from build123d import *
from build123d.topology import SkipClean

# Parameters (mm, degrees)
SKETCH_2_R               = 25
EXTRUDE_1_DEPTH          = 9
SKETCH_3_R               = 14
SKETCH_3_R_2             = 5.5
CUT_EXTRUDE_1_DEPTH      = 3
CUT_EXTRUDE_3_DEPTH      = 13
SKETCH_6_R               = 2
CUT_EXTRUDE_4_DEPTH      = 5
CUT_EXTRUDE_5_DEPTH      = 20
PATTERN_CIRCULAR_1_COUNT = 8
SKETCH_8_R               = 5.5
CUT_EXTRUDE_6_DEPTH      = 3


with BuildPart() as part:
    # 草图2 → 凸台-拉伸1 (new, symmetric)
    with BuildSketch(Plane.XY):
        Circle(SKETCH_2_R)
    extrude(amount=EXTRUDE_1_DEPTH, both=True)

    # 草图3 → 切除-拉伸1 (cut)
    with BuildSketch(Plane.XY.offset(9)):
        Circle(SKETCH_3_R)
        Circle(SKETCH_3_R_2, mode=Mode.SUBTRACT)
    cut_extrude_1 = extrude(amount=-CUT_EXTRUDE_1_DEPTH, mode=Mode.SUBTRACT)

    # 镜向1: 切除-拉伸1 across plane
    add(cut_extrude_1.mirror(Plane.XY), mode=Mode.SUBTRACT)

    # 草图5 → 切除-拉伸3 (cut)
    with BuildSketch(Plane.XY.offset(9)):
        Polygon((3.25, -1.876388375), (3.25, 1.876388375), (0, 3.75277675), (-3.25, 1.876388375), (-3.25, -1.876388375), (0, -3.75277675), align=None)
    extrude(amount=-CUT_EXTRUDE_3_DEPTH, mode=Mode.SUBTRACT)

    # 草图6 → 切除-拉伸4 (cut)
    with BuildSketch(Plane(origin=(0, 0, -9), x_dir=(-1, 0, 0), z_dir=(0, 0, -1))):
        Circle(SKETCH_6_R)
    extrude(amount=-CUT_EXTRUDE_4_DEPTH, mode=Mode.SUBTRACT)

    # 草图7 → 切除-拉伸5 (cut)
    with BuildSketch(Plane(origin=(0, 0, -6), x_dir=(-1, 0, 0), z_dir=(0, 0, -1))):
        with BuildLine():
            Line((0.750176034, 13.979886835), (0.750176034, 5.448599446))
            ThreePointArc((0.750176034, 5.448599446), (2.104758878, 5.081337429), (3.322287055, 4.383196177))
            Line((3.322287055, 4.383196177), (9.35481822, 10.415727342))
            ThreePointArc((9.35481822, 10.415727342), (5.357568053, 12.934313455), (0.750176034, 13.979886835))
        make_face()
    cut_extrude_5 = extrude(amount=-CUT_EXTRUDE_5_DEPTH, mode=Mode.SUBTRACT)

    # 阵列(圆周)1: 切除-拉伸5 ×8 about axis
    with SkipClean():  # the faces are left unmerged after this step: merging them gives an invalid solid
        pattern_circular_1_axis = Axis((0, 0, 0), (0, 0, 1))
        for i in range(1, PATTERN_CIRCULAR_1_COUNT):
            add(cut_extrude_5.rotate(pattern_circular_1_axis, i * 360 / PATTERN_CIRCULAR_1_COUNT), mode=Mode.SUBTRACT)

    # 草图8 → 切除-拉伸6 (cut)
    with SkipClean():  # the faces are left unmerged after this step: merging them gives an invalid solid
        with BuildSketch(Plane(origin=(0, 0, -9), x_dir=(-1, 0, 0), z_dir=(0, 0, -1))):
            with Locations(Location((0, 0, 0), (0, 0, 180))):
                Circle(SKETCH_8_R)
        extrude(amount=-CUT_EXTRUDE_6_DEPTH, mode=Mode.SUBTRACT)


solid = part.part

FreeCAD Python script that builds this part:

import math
import FreeCAD as App
import Part
import Sketcher
Q = App.Units.Quantity

doc = App.newDocument("Part")
body = doc.addObject("PartDesign::Body", "Body")

# Sketch on XY plane
sketch1 = body.newObject("Sketcher::SketchObject", "Sketch")
sketch1.AttachmentSupport = (doc.getObject("XY_Plane"), [""])
sketch1.MapMode = "FlatFace"
sketch1.addGeometry(Part.Circle(App.Vector(0, 0, 0), App.Vector(0, 0, 1), 25), False)
sketch1.addConstraint([
    Sketcher.Constraint("Coincident", 0, 3, -1, 1),
    Sketcher.Constraint("Diameter", 0, Q("50 mm")),
])
pad1 = body.newObject("PartDesign::Pad", "Pad")
pad1.Profile = sketch1
pad1.Length = 18
pad1.Midplane = True

# Sketch on XY plane
sketch2 = body.newObject("Sketcher::SketchObject", "Sketch001")
sketch2.AttachmentSupport = (doc.getObject("XY_Plane"), [""])
sketch2.MapMode = "FlatFace"
sketch2.AttachmentOffset = App.Placement(App.Vector(0, 0, 9), App.Rotation())
sketch2.addGeometry([
    Part.Circle(App.Vector(0, 0, 0), App.Vector(0, 0, 1), 14),
    Part.Circle(App.Vector(0, 0, 0), App.Vector(0, 0, 1), 6),
], False)
sketch2.addConstraint([
    Sketcher.Constraint("Coincident", 0, 3, -1, 1),
    Sketcher.Constraint("Coincident", 1, 3, -1, 1),
    Sketcher.Constraint("Diameter", 0, Q("28 mm")),
    Sketcher.Constraint("Diameter", 1, Q("11 mm")),
])
pocket1 = body.newObject("PartDesign::Pocket", "Pocket")
pocket1.Profile = sketch2
pocket1.Length = 3
doc.recompute()

mirrored = body.newObject("PartDesign::Mirrored", "Mirrored")
mirrored.Originals = [pocket1]
mirrored.MirrorPlane = (doc.getObject("XY_Plane"), [""])
body.Tip = mirrored

# Sketch on XY plane
sketch3 = body.newObject("Sketcher::SketchObject", "Sketch002")
sketch3.AttachmentSupport = (doc.getObject("XY_Plane"), [""])
sketch3.MapMode = "FlatFace"
sketch3.AttachmentOffset = App.Placement(App.Vector(0, 0, 9), App.Rotation())
sketch3.addGeometry([
    Part.LineSegment(App.Vector(3.2, -1.9, 0), App.Vector(3.2, 1.9, 0)),  # 0
    Part.LineSegment(App.Vector(3.2, 1.9, 0), App.Vector(0, 3.8, 0)),  # 1
    Part.LineSegment(App.Vector(0, 3.8, 0), App.Vector(-3.2, 1.9, 0)),  # 2
    Part.LineSegment(App.Vector(-3.2, 1.9, 0), App.Vector(-3.2, -1.9, 0)),  # 3
    Part.LineSegment(App.Vector(-3.2, -1.9, 0), App.Vector(0, -3.8, 0)),  # 4
    Part.LineSegment(App.Vector(0, -3.8, 0), App.Vector(3.2, -1.9, 0)),  # 5
], False)
sketch3.addConstraint([
    Sketcher.Constraint("Coincident", 0, 2, 1, 1),
    Sketcher.Constraint("Coincident", 1, 2, 2, 1),
    Sketcher.Constraint("Coincident", 2, 2, 3, 1),
    Sketcher.Constraint("Coincident", 3, 2, 4, 1),
    Sketcher.Constraint("Coincident", 4, 2, 5, 1),
    Sketcher.Constraint("Coincident", 5, 2, 0, 1),
    Sketcher.Constraint("Vertical", 0),
    Sketcher.Constraint("Vertical", 3),
    Sketcher.Constraint("Symmetric", 0, 2, 3, 2, -1, 1),
    Sketcher.Constraint("Symmetric", 1, 2, 4, 2, -1, 1),
    Sketcher.Constraint("PointOnObject", 1, 2, -2),
    Sketcher.Constraint("Parallel", 2, 5),
    Sketcher.Constraint("Horizontal", 0, 2, 2, 2),
    Sketcher.Constraint("Angle", 1, Q("150 deg")),
    Sketcher.Constraint("DistanceX", 2, 2, 0, 2, Q("6.5 mm")),
    Sketcher.Constraint("DistanceY", 0, 1, 0, 2, Q("3.752777 mm")),
])
pocket2 = body.newObject("PartDesign::Pocket", "Pocket001")
pocket2.Profile = sketch3
pocket2.Length = 13

# Sketch on XY plane
sketch4 = body.newObject("Sketcher::SketchObject", "Sketch003")
sketch4.AttachmentSupport = (doc.getObject("XY_Plane"), [""])
sketch4.MapMode = "FlatFace"
sketch4.AttachmentOffset = App.Placement(App.Vector(0, 0, -9), App.Rotation())
sketch4.addGeometry(Part.Circle(App.Vector(0, 0, 0), App.Vector(0, 0, 1), 2), False)
sketch4.addConstraint([
    Sketcher.Constraint("Coincident", 0, 3, -1, 1),
    Sketcher.Constraint("Diameter", 0, Q("4 mm")),
])
pocket3 = body.newObject("PartDesign::Pocket", "Pocket002")
pocket3.Profile = sketch4
pocket3.Length = 5
pocket3.Reversed = True

# Sketch on XY plane
sketch5 = body.newObject("Sketcher::SketchObject", "Sketch004")
sketch5.AttachmentSupport = (doc.getObject("XY_Plane"), [""])
sketch5.MapMode = "FlatFace"
sketch5.AttachmentOffset = App.Placement(App.Vector(0, 0, -6), App.Rotation())
sketch5.addGeometry([
    Part.LineSegment(App.Vector(-0.8, 14, 0), App.Vector(-0.8, 5.4, 0)),
    Part.ArcOfCircle(Part.Circle(App.Vector(0, 0, 0), App.Vector(0, 0, 1), 5.5), math.radians(98), math.radians(127)),
    Part.LineSegment(App.Vector(-3.3, 4.4, 0), App.Vector(-9.4, 10.4, 0)),
    Part.ArcOfCircle(Part.Circle(App.Vector(0, 0, 0), App.Vector(0, 0, 1), 14), math.radians(93), math.radians(132)),
], False)
sketch5.addConstraint([
    Sketcher.Constraint("Coincident", 0, 2, 1, 1),
    Sketcher.Constraint("Coincident", 1, 2, 2, 1),
    Sketcher.Constraint("Coincident", 2, 2, 3, 2),
    Sketcher.Constraint("Coincident", 3, 1, 0, 1),
    Sketcher.Constraint("Vertical", 0),
    Sketcher.Constraint("Coincident", 1, 3, -1, 1),
    Sketcher.Constraint("Coincident", 3, 3, -1, 1),
    Sketcher.Constraint("Radius", 3, Q("14 mm")),
    Sketcher.Constraint("Radius", 1, Q("5.5 mm")),
    Sketcher.Constraint("Angle", 2, Q("135 deg")),
    Sketcher.Constraint("DistanceY", -1, 1, 0, 2, Q("5.448599 mm")),
    Sketcher.Constraint("DistanceX", 2, 2, -1, 1, Q("9.354818 mm")),
])
pocket4 = body.newObject("PartDesign::Pocket", "Pocket003")
pocket4.Profile = sketch5
pocket4.Length = 20
pocket4.Reversed = True
doc.recompute()

polarpattern = body.newObject("PartDesign::PolarPattern", "PolarPattern")
polarpattern.Originals = [pocket4]
polarpattern.Axis = (doc.getObject("Z_Axis"), [""])
polarpattern.Angle = 360
polarpattern.Occurrences = 8
body.Tip = polarpattern

# Sketch on XY plane
sketch6 = body.newObject("Sketcher::SketchObject", "Sketch005")
sketch6.AttachmentSupport = (doc.getObject("XY_Plane"), [""])
sketch6.MapMode = "FlatFace"
sketch6.AttachmentOffset = App.Placement(App.Vector(0, 0, -9), App.Rotation())
sketch6.addGeometry(Part.Circle(App.Vector(0, 0, 0), App.Vector(0, 0, 1), 6), False)
sketch6.addConstraint([
    Sketcher.Constraint("Coincident", 0, 3, -1, 1),
    Sketcher.Constraint("Diameter", 0, Q("11 mm")),
])
pocket5 = body.newObject("PartDesign::Pocket", "Pocket004")
pocket5.Profile = sketch6
pocket5.Length = 3
pocket5.Reversed = True

doc.recompute()
